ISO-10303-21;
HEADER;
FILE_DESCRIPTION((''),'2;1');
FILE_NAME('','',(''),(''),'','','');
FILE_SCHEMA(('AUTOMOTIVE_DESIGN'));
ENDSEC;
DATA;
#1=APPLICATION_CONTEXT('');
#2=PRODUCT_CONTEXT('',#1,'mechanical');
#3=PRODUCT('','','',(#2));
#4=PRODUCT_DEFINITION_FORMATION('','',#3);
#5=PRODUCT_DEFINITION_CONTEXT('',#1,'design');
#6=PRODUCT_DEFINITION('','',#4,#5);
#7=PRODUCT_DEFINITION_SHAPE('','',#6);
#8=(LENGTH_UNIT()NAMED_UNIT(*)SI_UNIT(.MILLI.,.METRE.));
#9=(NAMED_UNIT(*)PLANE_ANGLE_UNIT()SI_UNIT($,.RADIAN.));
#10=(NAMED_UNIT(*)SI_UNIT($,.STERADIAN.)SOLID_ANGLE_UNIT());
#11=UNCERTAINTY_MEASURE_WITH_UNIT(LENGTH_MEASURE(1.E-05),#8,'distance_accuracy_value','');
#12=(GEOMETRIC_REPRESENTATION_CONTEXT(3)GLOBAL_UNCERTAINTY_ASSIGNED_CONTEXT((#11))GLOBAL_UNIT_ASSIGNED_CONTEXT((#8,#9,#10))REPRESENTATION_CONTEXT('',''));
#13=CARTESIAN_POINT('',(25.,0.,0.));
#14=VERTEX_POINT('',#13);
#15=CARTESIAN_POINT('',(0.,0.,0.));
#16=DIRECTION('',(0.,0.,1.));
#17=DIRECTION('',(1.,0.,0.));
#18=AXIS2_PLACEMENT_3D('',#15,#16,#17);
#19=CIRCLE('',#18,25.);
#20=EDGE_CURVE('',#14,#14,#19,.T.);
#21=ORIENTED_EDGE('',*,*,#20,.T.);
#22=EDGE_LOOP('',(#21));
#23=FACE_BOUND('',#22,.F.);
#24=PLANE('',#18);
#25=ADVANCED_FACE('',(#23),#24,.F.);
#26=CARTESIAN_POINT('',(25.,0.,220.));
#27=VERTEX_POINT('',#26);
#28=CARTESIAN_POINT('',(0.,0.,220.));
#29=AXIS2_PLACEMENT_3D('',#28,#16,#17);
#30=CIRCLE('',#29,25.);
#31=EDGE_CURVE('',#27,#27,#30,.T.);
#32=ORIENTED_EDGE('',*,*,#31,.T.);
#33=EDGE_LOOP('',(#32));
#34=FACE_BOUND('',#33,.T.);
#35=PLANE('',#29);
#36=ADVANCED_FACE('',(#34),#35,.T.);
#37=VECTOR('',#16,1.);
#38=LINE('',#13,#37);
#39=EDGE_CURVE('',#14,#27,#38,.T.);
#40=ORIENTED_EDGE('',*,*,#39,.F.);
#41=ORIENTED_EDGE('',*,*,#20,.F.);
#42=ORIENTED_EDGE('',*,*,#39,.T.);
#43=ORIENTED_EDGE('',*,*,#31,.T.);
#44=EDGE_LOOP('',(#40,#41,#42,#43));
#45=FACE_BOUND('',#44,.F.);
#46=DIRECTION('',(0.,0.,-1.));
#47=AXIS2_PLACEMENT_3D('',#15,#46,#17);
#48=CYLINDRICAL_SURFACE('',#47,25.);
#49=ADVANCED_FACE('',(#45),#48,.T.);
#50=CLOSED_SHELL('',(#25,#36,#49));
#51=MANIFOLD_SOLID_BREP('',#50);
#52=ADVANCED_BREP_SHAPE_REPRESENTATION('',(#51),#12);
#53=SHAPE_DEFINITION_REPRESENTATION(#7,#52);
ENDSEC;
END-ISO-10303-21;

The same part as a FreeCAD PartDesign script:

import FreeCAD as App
import Part
import Sketcher
Q = App.Units.Quantity

doc = App.newDocument("Part")
body = doc.addObject("PartDesign::Body", "Body")

# Sketch on XY plane
sketch1 = doc.addObject("Sketcher::SketchObject", "Sketch")
body.addObject(sketch1)
sketch1.AttachmentSupport = (doc.XY_Plane, [""])
sketch1.MapMode = "FlatFace"
sketch1.addGeometry(Part.Circle(App.Vector(0, 0, 0), App.Vector(0, 0, 1), 25), False)
sketch1.addConstraint([
    Sketcher.Constraint("Coincident", 0, 3, -1, 1),
    Sketcher.Constraint("Diameter", 0, Q("50 mm")),
])
pad1 = doc.addObject("PartDesign::Pad", "Pad")
body.addObject(pad1)
pad1.Profile = sketch1
pad1.Length = 220

doc.recompute()
